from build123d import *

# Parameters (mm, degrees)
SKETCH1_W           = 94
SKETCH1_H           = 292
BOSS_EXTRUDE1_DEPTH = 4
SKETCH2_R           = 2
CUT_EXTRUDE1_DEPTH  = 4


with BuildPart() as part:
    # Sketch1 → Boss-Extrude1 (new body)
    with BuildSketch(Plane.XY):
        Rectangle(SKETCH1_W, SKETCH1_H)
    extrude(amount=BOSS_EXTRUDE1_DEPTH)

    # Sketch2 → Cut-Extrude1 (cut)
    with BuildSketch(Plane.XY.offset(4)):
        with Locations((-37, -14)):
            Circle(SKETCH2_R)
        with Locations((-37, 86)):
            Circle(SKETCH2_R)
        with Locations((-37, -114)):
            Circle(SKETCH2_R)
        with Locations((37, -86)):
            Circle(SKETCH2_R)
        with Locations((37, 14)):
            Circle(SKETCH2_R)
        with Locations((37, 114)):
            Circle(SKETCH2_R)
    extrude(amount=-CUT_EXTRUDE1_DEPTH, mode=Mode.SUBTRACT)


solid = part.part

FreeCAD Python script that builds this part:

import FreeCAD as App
import Part
import Sketcher
Q = App.Units.Quantity


def add_polygon(sketch, points):
    """Adds a closed chain of lines whose ends are joined by coincident constraints."""
    first, n = sketch.GeometryCount, len(points)
    for a, b in zip(points, points[1:] + points[:1]):
        sketch.addGeometry(Part.LineSegment(App.Vector(*a, 0), App.Vector(*b, 0)), False)
    for i in range(n):
        sketch.addConstraint(Sketcher.Constraint("Coincident", first + i, 2, first + (i + 1) % n, 1))

doc = App.newDocument("Part")
body = doc.addObject("PartDesign::Body", "Body")

# Sketch on XY plane
sketch1 = body.newObject("Sketcher::SketchObject", "Sketch")
sketch1.AttachmentSupport = (doc.getObject("XY_Plane"), [""])
sketch1.MapMode = "FlatFace"
add_polygon(sketch1, [(-47, 146), (-47, -146), (47, -146), (47, 146)])  # lines 0-3
sketch1.addConstraint([
    Sketcher.Constraint("Vertical", 0),
    Sketcher.Constraint("Horizontal", 1),
    Sketcher.Constraint("Vertical", 2),
    Sketcher.Constraint("Horizontal", 3),
    Sketcher.Constraint("Symmetric", 0, 2, 2, 2, -1, 1),
    Sketcher.Constraint("DistanceX", 1, 1, 1, 2, Q("94 mm")),
    Sketcher.Constraint("DistanceY", 0, 2, 0, 1, Q("292 mm")),
])
pad1 = body.newObject("PartDesign::Pad", "Pad")
pad1.Profile = sketch1
pad1.Length = 4

# Sketch on XY plane
sketch2 = body.newObject("Sketcher::SketchObject", "Sketch001")
sketch2.AttachmentSupport = (doc.getObject("XY_Plane"), [""])
sketch2.MapMode = "FlatFace"
sketch2.AttachmentOffset = App.Placement(App.Vector(0, 0, 4), App.Rotation())
sketch2.addGeometry([
    Part.Circle(App.Vector(-37, -14, 0), App.Vector(0, 0, 1), 2),  # 0
    Part.Circle(App.Vector(-37, 86, 0), App.Vector(0, 0, 1), 2),  # 1
    Part.Circle(App.Vector(-37, -114, 0), App.Vector(0, 0, 1), 2),  # 2
    Part.Circle(App.Vector(37, -86, 0), App.Vector(0, 0, 1), 2),  # 3
    Part.Circle(App.Vector(37, 14, 0), App.Vector(0, 0, 1), 2),  # 4
    Part.Circle(App.Vector(37, 114, 0), App.Vector(0, 0, 1), 2),  # 5
], False)
sketch2.addConstraint([
    Sketcher.Constraint("Equal", 0, 1),
    Sketcher.Constraint("Equal", 1, 2),
    Sketcher.Constraint("Equal", 2, 3),
    Sketcher.Constraint("Equal", 3, 4),
    Sketcher.Constraint("Equal", 4, 5),
    Sketcher.Constraint("Symmetric", 1, 3, 3, 3, -1, 1),
    Sketcher.Constraint("Symmetric", 0, 3, 4, 3, -1, 1),
    Sketcher.Constraint("Symmetric", 2, 3, 5, 3, -1, 1),
    Sketcher.Constraint("Vertical", 0, 3, 1, 3),
    Sketcher.Constraint("Vertical", 1, 3, 2, 3),
    Sketcher.Constraint("Diameter", 0, Q("4 mm")),
    Sketcher.Constraint("DistanceX", 0, 3, -1, 1, Q("37 mm")),
    Sketcher.Constraint("DistanceY", 0, 3, -1, 1, Q("14 mm")),
    Sketcher.Constraint("DistanceY", -1, 1, 1, 3, Q("86 mm")),
    Sketcher.Constraint("DistanceY", 2, 3, -1, 1, Q("114 mm")),
])
pocket1 = body.newObject("PartDesign::Pocket", "Pocket")
pocket1.Profile = sketch2
pocket1.Length = 4

doc.recompute()
